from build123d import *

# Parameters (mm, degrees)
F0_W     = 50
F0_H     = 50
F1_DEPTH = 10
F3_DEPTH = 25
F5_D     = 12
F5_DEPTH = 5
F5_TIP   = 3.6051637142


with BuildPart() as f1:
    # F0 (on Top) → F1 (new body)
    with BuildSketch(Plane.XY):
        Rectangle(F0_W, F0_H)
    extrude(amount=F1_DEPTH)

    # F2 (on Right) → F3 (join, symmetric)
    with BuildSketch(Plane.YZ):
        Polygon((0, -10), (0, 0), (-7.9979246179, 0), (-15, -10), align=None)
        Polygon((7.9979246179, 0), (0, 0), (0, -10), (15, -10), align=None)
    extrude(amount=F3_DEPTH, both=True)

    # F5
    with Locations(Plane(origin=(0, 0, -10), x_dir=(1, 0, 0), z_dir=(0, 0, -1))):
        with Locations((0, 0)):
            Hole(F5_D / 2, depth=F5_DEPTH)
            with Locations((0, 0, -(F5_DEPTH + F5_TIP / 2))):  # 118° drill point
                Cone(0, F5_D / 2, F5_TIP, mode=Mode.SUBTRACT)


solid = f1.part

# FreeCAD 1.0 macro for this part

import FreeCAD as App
import Part
import Sketcher
Q = App.Units.Quantity


def add_polygon(sketch, points):
    """Adds a closed chain of lines whose ends are joined by coincident constraints."""
    first, n = sketch.GeometryCount, len(points)
    for a, b in zip(points, points[1:] + points[:1]):
        sketch.addGeometry(Part.LineSegment(App.Vector(*a, 0), App.Vector(*b, 0)), False)
    for i in range(n):
        sketch.addConstraint(Sketcher.Constraint("Coincident", first + i, 2, first + (i + 1) % n, 1))

doc = App.newDocument("Part")
body = doc.addObject("PartDesign::Body", "Body")

# Sketch on XY plane
sketch1 = doc.addObject("Sketcher::SketchObject", "Sketch")
body.addObject(sketch1)
sketch1.AttachmentSupport = (doc.XY_Plane, [""])
sketch1.MapMode = "FlatFace"
add_polygon(sketch1, [(-25, 25), (-25, -25), (25, -25), (25, 25)])  # lines 0-3
sketch1.addConstraint([
    Sketcher.Constraint("Vertical", 0),
    Sketcher.Constraint("Horizontal", 1),
    Sketcher.Constraint("Vertical", 2),
    Sketcher.Constraint("Horizontal", 3),
    Sketcher.Constraint("Symmetric", 0, 2, 2, 2, -1, 1),
    Sketcher.Constraint("Equal", 3, 0),
    Sketcher.Constraint("DistanceX", 1, 1, 1, 2, Q("50 mm")),
])
pad1 = doc.addObject("PartDesign::Pad", "Pad")
body.addObject(pad1)
pad1.Profile = sketch1
pad1.Length = 10

# Sketch on YZ plane
sketch2 = doc.addObject("Sketcher::SketchObject", "Sketch001")
body.addObject(sketch2)
sketch2.AttachmentSupport = (doc.YZ_Plane, [""])
sketch2.MapMode = "FlatFace"
add_polygon(sketch2, [(-7.997925, 0), (-15, -10), (15, -10), (7.997925, 0)])  # lines 0-3
sketch2.addConstraint([
    Sketcher.Constraint("Horizontal", 1),
    Sketcher.Constraint("Horizontal", 3),
    Sketcher.Constraint("Symmetric", 2, 2, 3, 2, -1, 1),
    Sketcher.Constraint("Equal", 0, 2),
    Sketcher.Constraint("DistanceX", 1, 1, 1, 2, Q("30 mm")),
    Sketcher.Constraint("Angle", 0, Q("-125 deg")),
    Sketcher.Constraint("DistanceY", 0, 2, -1, 1, Q("10 mm")),
])
pad2 = doc.addObject("PartDesign::Pad", "Pad001")
body.addObject(pad2)
pad2.Profile = sketch2
pad2.Length = 50
pad2.Midplane = True

# Sketch on XY plane
sketch3 = doc.addObject("Sketcher::SketchObject", "Sketch002")
body.addObject(sketch3)
sketch3.AttachmentSupport = (doc.XY_Plane, [""])
sketch3.MapMode = "FlatFace"
sketch3.AttachmentOffset = App.Placement(App.Vector(0, 0, -10), App.Rotation())
sketch3.addGeometry(Part.Circle(App.Vector(0, 0, 0), App.Vector(0, 0, 1), 6), False)
sketch3.addConstraint([
    Sketcher.Constraint("Coincident", 0, 3, -1, 1),
    Sketcher.Constraint("Diameter", 0, Q("12 mm")),
])
doc.recompute()
hole = doc.addObject("PartDesign::Hole", "Hole")
body.addObject(hole)
hole.Profile = sketch3
hole.ThreadType = "None"
hole.Diameter = 12
hole.DepthType = "Dimension"
hole.Depth = 5
hole.DrillPoint = "Angled"
hole.DrillPointAngle = 118
hole.Reversed = True

doc.recompute()
